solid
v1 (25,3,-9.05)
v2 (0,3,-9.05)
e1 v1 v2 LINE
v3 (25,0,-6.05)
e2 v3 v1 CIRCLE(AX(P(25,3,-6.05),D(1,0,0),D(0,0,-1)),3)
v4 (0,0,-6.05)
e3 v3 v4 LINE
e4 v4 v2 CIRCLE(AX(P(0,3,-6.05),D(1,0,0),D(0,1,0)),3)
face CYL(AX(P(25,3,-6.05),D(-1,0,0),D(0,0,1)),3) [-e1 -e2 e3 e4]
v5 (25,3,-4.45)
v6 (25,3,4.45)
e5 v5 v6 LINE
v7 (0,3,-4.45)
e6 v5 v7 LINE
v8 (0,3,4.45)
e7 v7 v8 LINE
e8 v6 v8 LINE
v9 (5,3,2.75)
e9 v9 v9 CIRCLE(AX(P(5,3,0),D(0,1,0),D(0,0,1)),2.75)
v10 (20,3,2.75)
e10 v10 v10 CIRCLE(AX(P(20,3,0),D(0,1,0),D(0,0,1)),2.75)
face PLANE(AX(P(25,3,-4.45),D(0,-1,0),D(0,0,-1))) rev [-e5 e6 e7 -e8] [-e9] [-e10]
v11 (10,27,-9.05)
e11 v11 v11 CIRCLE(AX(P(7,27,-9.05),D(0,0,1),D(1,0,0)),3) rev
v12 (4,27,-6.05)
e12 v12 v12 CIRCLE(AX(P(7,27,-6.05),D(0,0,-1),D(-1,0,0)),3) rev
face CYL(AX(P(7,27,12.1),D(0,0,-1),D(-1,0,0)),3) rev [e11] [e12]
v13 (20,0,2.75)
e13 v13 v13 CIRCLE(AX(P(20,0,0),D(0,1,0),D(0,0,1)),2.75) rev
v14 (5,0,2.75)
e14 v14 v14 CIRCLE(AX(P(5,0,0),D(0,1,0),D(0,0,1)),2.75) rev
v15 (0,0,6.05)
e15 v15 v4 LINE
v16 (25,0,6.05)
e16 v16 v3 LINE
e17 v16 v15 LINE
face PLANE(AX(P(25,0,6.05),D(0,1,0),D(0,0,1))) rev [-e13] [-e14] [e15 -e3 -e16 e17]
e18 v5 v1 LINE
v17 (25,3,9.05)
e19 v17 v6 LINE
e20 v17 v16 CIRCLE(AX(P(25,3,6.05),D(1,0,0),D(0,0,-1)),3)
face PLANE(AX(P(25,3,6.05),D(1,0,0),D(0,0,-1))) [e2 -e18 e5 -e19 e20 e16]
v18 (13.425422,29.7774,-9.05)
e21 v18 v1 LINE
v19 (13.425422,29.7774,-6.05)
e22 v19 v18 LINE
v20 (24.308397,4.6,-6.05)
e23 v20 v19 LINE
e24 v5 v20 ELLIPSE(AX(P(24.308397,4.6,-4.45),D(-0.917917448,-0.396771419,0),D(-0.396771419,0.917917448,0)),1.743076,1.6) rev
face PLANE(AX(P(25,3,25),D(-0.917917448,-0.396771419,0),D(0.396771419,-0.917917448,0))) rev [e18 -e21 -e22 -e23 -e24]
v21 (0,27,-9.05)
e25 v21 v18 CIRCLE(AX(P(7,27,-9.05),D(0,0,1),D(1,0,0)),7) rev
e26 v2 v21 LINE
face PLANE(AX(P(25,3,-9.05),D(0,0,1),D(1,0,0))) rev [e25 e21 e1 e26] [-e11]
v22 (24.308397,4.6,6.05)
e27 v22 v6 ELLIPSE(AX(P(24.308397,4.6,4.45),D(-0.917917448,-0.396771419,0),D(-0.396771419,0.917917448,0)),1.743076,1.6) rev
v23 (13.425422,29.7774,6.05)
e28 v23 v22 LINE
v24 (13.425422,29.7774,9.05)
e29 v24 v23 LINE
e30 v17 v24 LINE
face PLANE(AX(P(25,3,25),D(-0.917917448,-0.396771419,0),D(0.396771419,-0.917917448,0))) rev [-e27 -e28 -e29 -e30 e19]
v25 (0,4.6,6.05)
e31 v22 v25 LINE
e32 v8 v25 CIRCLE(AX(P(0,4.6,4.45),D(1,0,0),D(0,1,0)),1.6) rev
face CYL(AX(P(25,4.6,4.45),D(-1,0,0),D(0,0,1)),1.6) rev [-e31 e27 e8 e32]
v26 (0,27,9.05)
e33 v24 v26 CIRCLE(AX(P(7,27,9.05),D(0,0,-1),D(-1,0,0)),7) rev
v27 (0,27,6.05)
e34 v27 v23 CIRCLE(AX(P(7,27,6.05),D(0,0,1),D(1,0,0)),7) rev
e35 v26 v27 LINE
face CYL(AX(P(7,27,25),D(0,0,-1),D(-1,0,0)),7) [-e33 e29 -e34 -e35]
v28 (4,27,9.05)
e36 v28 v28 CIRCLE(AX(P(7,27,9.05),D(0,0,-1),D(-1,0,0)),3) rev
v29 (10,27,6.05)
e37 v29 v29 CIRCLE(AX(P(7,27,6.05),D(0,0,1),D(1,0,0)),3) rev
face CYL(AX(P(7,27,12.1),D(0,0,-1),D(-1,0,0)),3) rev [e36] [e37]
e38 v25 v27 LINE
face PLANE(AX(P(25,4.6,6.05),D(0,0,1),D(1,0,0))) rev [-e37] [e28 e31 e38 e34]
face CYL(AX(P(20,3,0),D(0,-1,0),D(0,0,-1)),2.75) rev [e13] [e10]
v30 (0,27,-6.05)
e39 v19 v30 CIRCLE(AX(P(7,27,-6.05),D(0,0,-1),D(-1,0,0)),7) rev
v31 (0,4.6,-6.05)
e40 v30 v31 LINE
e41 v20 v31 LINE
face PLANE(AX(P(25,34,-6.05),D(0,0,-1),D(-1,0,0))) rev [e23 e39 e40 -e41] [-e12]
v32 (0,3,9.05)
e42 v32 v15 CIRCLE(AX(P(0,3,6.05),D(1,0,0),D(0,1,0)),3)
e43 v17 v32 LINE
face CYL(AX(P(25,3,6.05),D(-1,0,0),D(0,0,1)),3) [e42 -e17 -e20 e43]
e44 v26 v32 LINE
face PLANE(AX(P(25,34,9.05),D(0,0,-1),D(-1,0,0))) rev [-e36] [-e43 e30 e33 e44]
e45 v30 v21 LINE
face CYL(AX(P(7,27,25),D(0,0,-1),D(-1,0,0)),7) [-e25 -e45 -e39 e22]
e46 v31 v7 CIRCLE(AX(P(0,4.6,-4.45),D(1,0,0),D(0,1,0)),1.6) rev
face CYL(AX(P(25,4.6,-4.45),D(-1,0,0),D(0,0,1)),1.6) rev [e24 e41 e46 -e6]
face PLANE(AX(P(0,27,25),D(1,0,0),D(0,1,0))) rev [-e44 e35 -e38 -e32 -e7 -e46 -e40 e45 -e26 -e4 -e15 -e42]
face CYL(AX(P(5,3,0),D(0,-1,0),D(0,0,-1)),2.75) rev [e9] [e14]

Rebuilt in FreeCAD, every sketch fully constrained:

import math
import FreeCAD as App
import Part
import Sketcher

V = App.Vector
Q = App.Units.Quantity

doc = App.newDocument("Part")
body = doc.addObject("PartDesign::Body", "Body")

# Sketch on YZ plane
sketch1 = doc.addObject("Sketcher::SketchObject", "Sketch")
body.addObject(sketch1)
sketch1.AttachmentSupport = (doc.YZ_Plane, [""])
sketch1.MapMode = "FlatFace"
sketch1.addGeometry(Part.LineSegment(V(0, 6, 0), V(0, -6, 0)), False)
sketch1.addGeometry(Part.ArcOfCircle(Part.Circle(V(3, -6.1, 0), V(0, 0, 1), 3), math.radians(180), math.radians(270)), False)
sketch1.addGeometry(Part.LineSegment(V(3, -9.1, 0), V(34, -9.1, 0)), False)
sketch1.addGeometry(Part.LineSegment(V(34, -9.1, 0), V(34, -6, 0)), False)
sketch1.addGeometry(Part.LineSegment(V(34, -6, 0), V(4.6, -6, 0)), False)
sketch1.addGeometry(Part.ArcOfCircle(Part.Circle(V(4.6, -4.5, 0), V(0, 0, 1), 1.6), math.radians(180), math.radians(270)), False)
sketch1.addGeometry(Part.LineSegment(V(3, -4.5, 0), V(3, 4.5, 0)), False)
sketch1.addGeometry(Part.ArcOfCircle(Part.Circle(V(4.6, 4.5, 0), V(0, 0, 1), 1.6), math.radians(90), math.radians(180)), False)
sketch1.addGeometry(Part.LineSegment(V(4.6, 6, 0), V(34, 6, 0)), False)
sketch1.addGeometry(Part.LineSegment(V(34, 6, 0), V(34, 9.1, 0)), False)
sketch1.addGeometry(Part.LineSegment(V(34, 9.1, 0), V(3, 9.1, 0)), False)
sketch1.addGeometry(Part.ArcOfCircle(Part.Circle(V(3, 6.1, 0), V(0, 0, 1), 3), math.radians(90), math.radians(180)), False)
sketch1.addConstraint(Sketcher.Constraint("Tangent", 0, 2, 1, 1))
sketch1.addConstraint(Sketcher.Constraint("Tangent", 1, 2, 2, 1))
sketch1.addConstraint(Sketcher.Constraint("Coincident", 2, 2, 3, 1))
sketch1.addConstraint(Sketcher.Constraint("Coincident", 3, 2, 4, 1))
sketch1.addConstraint(Sketcher.Constraint("Tangent", 4, 2, 5, 2))
sketch1.addConstraint(Sketcher.Constraint("Tangent", 5, 1, 6, 1))
sketch1.addConstraint(Sketcher.Constraint("Tangent", 6, 2, 7, 2))
sketch1.addConstraint(Sketcher.Constraint("Tangent", 7, 1, 8, 1))
sketch1.addConstraint(Sketcher.Constraint("Coincident", 8, 2, 9, 1))
sketch1.addConstraint(Sketcher.Constraint("Coincident", 9, 2, 10, 1))
sketch1.addConstraint(Sketcher.Constraint("Tangent", 10, 2, 11, 1))
sketch1.addConstraint(Sketcher.Constraint("Tangent", 11, 2, 0, 1))
sketch1.addConstraint(Sketcher.Constraint("Vertical", 0))
sketch1.addConstraint(Sketcher.Constraint("Horizontal", 2))
sketch1.addConstraint(Sketcher.Constraint("Vertical", 3))
sketch1.addConstraint(Sketcher.Constraint("Horizontal", 4))
sketch1.addConstraint(Sketcher.Constraint("Vertical", 6))
sketch1.addConstraint(Sketcher.Constraint("Horizontal", 8))
sketch1.addConstraint(Sketcher.Constraint("Vertical", 9))
sketch1.addConstraint(Sketcher.Constraint("Horizontal", 10))
sketch1.addConstraint(Sketcher.Constraint("Equal", 5, 7))
sketch1.addConstraint(Sketcher.Constraint("Equal", 1, 11))
sketch1.addConstraint(Sketcher.Constraint("Symmetric", 0, 2, 11, 2, -1, 1))
sketch1.addConstraint(Sketcher.Constraint("Symmetric", 3, 2, 8, 2, -1))
sketch1.addConstraint(Sketcher.Constraint("Horizontal", 0, 2, 3, 2))
sketch1.addConstraint(Sketcher.Constraint("Vertical", 1, 2, 5, 1))
sketch1.addConstraint(Sketcher.Constraint("Radius", 1, Q("3 mm")))
sketch1.addConstraint(Sketcher.Constraint("Radius", 5, Q("1.6 mm")))
sketch1.addConstraint(Sketcher.Constraint("DistanceX", 2, 1, 2, 2, Q("31 mm")))
sketch1.addConstraint(Sketcher.Constraint("DistanceY", 0, 2, 0, 1, Q("12.1 mm")))
pad1 = doc.addObject("PartDesign::Pad", "Pad")
body.addObject(pad1)
pad1.Profile = sketch1
pad1.Type = "TwoLengths"
pad1.Length = 25
pad1.Length2 = 25

# Sketch on XY plane
sketch2 = doc.addObject("Sketcher::SketchObject", "Sketch001")
body.addObject(sketch2)
sketch2.AttachmentSupport = (doc.XY_Plane, [""])
sketch2.MapMode = "FlatFace"
sketch2.addGeometry(Part.LineSegment(V(-37.1, 54, 0), V(-37.1, -12.1, 0)), False)
sketch2.addGeometry(Part.LineSegment(V(-37.1, -12.1, 0), V(37.1, -12.1, 0)), False)
sketch2.addGeometry(Part.LineSegment(V(37.1, -12.1, 0), V(37.1, 54, 0)), False)
sketch2.addGeometry(Part.LineSegment(V(37.1, 54, 0), V(-37.1, 54, 0)), False)
sketch2.addGeometry(Part.LineSegment(V(25, 0, 0), V(0, 0, 0)), False)
sketch2.addGeometry(Part.LineSegment(V(0, 0, 0), V(0, 27, 0)), False)
sketch2.addGeometry(Part.ArcOfCircle(Part.Circle(V(7, 27, 0), V(0, 0, 1), 7), math.radians(23), math.radians(180)), False)
sketch2.addGeometry(Part.LineSegment(V(13.4, 29.8, 0), V(25, 3, 0)), False)
sketch2.addGeometry(Part.LineSegment(V(25, 3, 0), V(25, 0, 0)), False)
sketch2.addConstraint(Sketcher.Constraint("Coincident", 0, 2, 1, 1))
sketch2.addConstraint(Sketcher.Constraint("Coincident", 1, 2, 2, 1))
sketch2.addConstraint(Sketcher.Constraint("Coincident", 2, 2, 3, 1))
sketch2.addConstraint(Sketcher.Constraint("Coincident", 3, 2, 0, 1))
sketch2.addConstraint(Sketcher.Constraint("Coincident", 4, 2, 5, 1))
sketch2.addConstraint(Sketcher.Constraint("Tangent", 5, 2, 6, 2))
sketch2.addConstraint(Sketcher.Constraint("Tangent", 6, 1, 7, 1))
sketch2.addConstraint(Sketcher.Constraint("Coincident", 7, 2, 8, 1))
sketch2.addConstraint(Sketcher.Constraint("Coincident", 8, 2, 4, 1))
sketch2.addConstraint(Sketcher.Constraint("Vertical", 0))
sketch2.addConstraint(Sketcher.Constraint("Horizontal", 1))
sketch2.addConstraint(Sketcher.Constraint("Vertical", 2))
sketch2.addConstraint(Sketcher.Constraint("Horizontal", 3))
sketch2.addConstraint(Sketcher.Constraint("Horizontal", 4))
sketch2.addConstraint(Sketcher.Constraint("Vertical", 5))
sketch2.addConstraint(Sketcher.Constraint("Vertical", 8))
sketch2.addConstraint(Sketcher.Constraint("Coincident", 4, 2, -1, 1))
sketch2.addConstraint(Sketcher.Constraint("Radius", 6, Q("7 mm")))
sketch2.addConstraint(Sketcher.Constraint("DistanceX", 4, 2, 4, 1, Q("25 mm")))
sketch2.addConstraint(Sketcher.Constraint("DistanceY", 5, 1, 5, 2, Q("27 mm")))
sketch2.addConstraint(Sketcher.Constraint("DistanceY", 8, 2, 8, 1, Q("3 mm")))
sketch2.addConstraint(Sketcher.Constraint("DistanceX", 1, 1, 1, 2, Q("74.2 mm")))
sketch2.addConstraint(Sketcher.Constraint("DistanceY", 0, 2, 0, 1, Q("66.1 mm")))
sketch2.addConstraint(Sketcher.Constraint("DistanceY", -1, 1, 2, 2, Q("54 mm")))
sketch2.addConstraint(Sketcher.Constraint("DistanceX", 0, 2, -1, 1, Q("37.1 mm")))
pocket1 = doc.addObject("PartDesign::Pocket", "Pocket")
body.addObject(pocket1)
pocket1.Profile = sketch2
pocket1.Type = "ThroughAll"
pocket1.Midplane = True

# Sketch on XY plane
sketch3 = doc.addObject("Sketcher::SketchObject", "Sketch002")
body.addObject(sketch3)
sketch3.AttachmentSupport = (doc.XY_Plane, [""])
sketch3.MapMode = "FlatFace"
sketch3.addGeometry(Part.Circle(V(7, 27, 0), V(0, 0, 1), 3), False)
sketch3.addConstraint(Sketcher.Constraint("Diameter", 0, Q("6 mm")))
sketch3.addConstraint(Sketcher.Constraint("DistanceX", -1, 1, 0, 3, Q("7 mm")))
sketch3.addConstraint(Sketcher.Constraint("DistanceY", -1, 1, 0, 3, Q("27 mm")))
pocket2 = doc.addObject("PartDesign::Pocket", "Pocket001")
body.addObject(pocket2)
pocket2.Profile = sketch3
pocket2.Type = "ThroughAll"
pocket2.Midplane = True

# Sketch on XZ plane
sketch4 = doc.addObject("Sketcher::SketchObject", "Sketch003")
body.addObject(sketch4)
sketch4.AttachmentSupport = (doc.XZ_Plane, [""])
sketch4.MapMode = "FlatFace"
sketch4.addGeometry(Part.Circle(V(5, 0, 0), V(0, 0, 1), 2.8), False)
sketch4.addConstraint(Sketcher.Constraint("PointOnObject", 0, 3, -1))
sketch4.addConstraint(Sketcher.Constraint("Diameter", 0, Q("5.5 mm")))
sketch4.addConstraint(Sketcher.Constraint("DistanceX", -1, 1, 0, 3, Q("5 mm")))
pocket3 = doc.addObject("PartDesign::Pocket", "Pocket002")
body.addObject(pocket3)
pocket3.Profile = sketch4
pocket3.Type = "ThroughAll"
pocket3.Midplane = True

# Sketch on XZ plane
sketch5 = doc.addObject("Sketcher::SketchObject", "Sketch004")
body.addObject(sketch5)
sketch5.AttachmentSupport = (doc.XZ_Plane, [""])
sketch5.MapMode = "FlatFace"
sketch5.addGeometry(Part.Circle(V(20, 0, 0), V(0, 0, 1), 2.8), False)
sketch5.addConstraint(Sketcher.Constraint("PointOnObject", 0, 3, -1))
sketch5.addConstraint(Sketcher.Constraint("Diameter", 0, Q("5.5 mm")))
sketch5.addConstraint(Sketcher.Constraint("DistanceX", -1, 1, 0, 3, Q("20 mm")))
pocket4 = doc.addObject("PartDesign::Pocket", "Pocket003")
body.addObject(pocket4)
pocket4.Profile = sketch5
pocket4.Type = "ThroughAll"
pocket4.Midplane = True

doc.recompute()
